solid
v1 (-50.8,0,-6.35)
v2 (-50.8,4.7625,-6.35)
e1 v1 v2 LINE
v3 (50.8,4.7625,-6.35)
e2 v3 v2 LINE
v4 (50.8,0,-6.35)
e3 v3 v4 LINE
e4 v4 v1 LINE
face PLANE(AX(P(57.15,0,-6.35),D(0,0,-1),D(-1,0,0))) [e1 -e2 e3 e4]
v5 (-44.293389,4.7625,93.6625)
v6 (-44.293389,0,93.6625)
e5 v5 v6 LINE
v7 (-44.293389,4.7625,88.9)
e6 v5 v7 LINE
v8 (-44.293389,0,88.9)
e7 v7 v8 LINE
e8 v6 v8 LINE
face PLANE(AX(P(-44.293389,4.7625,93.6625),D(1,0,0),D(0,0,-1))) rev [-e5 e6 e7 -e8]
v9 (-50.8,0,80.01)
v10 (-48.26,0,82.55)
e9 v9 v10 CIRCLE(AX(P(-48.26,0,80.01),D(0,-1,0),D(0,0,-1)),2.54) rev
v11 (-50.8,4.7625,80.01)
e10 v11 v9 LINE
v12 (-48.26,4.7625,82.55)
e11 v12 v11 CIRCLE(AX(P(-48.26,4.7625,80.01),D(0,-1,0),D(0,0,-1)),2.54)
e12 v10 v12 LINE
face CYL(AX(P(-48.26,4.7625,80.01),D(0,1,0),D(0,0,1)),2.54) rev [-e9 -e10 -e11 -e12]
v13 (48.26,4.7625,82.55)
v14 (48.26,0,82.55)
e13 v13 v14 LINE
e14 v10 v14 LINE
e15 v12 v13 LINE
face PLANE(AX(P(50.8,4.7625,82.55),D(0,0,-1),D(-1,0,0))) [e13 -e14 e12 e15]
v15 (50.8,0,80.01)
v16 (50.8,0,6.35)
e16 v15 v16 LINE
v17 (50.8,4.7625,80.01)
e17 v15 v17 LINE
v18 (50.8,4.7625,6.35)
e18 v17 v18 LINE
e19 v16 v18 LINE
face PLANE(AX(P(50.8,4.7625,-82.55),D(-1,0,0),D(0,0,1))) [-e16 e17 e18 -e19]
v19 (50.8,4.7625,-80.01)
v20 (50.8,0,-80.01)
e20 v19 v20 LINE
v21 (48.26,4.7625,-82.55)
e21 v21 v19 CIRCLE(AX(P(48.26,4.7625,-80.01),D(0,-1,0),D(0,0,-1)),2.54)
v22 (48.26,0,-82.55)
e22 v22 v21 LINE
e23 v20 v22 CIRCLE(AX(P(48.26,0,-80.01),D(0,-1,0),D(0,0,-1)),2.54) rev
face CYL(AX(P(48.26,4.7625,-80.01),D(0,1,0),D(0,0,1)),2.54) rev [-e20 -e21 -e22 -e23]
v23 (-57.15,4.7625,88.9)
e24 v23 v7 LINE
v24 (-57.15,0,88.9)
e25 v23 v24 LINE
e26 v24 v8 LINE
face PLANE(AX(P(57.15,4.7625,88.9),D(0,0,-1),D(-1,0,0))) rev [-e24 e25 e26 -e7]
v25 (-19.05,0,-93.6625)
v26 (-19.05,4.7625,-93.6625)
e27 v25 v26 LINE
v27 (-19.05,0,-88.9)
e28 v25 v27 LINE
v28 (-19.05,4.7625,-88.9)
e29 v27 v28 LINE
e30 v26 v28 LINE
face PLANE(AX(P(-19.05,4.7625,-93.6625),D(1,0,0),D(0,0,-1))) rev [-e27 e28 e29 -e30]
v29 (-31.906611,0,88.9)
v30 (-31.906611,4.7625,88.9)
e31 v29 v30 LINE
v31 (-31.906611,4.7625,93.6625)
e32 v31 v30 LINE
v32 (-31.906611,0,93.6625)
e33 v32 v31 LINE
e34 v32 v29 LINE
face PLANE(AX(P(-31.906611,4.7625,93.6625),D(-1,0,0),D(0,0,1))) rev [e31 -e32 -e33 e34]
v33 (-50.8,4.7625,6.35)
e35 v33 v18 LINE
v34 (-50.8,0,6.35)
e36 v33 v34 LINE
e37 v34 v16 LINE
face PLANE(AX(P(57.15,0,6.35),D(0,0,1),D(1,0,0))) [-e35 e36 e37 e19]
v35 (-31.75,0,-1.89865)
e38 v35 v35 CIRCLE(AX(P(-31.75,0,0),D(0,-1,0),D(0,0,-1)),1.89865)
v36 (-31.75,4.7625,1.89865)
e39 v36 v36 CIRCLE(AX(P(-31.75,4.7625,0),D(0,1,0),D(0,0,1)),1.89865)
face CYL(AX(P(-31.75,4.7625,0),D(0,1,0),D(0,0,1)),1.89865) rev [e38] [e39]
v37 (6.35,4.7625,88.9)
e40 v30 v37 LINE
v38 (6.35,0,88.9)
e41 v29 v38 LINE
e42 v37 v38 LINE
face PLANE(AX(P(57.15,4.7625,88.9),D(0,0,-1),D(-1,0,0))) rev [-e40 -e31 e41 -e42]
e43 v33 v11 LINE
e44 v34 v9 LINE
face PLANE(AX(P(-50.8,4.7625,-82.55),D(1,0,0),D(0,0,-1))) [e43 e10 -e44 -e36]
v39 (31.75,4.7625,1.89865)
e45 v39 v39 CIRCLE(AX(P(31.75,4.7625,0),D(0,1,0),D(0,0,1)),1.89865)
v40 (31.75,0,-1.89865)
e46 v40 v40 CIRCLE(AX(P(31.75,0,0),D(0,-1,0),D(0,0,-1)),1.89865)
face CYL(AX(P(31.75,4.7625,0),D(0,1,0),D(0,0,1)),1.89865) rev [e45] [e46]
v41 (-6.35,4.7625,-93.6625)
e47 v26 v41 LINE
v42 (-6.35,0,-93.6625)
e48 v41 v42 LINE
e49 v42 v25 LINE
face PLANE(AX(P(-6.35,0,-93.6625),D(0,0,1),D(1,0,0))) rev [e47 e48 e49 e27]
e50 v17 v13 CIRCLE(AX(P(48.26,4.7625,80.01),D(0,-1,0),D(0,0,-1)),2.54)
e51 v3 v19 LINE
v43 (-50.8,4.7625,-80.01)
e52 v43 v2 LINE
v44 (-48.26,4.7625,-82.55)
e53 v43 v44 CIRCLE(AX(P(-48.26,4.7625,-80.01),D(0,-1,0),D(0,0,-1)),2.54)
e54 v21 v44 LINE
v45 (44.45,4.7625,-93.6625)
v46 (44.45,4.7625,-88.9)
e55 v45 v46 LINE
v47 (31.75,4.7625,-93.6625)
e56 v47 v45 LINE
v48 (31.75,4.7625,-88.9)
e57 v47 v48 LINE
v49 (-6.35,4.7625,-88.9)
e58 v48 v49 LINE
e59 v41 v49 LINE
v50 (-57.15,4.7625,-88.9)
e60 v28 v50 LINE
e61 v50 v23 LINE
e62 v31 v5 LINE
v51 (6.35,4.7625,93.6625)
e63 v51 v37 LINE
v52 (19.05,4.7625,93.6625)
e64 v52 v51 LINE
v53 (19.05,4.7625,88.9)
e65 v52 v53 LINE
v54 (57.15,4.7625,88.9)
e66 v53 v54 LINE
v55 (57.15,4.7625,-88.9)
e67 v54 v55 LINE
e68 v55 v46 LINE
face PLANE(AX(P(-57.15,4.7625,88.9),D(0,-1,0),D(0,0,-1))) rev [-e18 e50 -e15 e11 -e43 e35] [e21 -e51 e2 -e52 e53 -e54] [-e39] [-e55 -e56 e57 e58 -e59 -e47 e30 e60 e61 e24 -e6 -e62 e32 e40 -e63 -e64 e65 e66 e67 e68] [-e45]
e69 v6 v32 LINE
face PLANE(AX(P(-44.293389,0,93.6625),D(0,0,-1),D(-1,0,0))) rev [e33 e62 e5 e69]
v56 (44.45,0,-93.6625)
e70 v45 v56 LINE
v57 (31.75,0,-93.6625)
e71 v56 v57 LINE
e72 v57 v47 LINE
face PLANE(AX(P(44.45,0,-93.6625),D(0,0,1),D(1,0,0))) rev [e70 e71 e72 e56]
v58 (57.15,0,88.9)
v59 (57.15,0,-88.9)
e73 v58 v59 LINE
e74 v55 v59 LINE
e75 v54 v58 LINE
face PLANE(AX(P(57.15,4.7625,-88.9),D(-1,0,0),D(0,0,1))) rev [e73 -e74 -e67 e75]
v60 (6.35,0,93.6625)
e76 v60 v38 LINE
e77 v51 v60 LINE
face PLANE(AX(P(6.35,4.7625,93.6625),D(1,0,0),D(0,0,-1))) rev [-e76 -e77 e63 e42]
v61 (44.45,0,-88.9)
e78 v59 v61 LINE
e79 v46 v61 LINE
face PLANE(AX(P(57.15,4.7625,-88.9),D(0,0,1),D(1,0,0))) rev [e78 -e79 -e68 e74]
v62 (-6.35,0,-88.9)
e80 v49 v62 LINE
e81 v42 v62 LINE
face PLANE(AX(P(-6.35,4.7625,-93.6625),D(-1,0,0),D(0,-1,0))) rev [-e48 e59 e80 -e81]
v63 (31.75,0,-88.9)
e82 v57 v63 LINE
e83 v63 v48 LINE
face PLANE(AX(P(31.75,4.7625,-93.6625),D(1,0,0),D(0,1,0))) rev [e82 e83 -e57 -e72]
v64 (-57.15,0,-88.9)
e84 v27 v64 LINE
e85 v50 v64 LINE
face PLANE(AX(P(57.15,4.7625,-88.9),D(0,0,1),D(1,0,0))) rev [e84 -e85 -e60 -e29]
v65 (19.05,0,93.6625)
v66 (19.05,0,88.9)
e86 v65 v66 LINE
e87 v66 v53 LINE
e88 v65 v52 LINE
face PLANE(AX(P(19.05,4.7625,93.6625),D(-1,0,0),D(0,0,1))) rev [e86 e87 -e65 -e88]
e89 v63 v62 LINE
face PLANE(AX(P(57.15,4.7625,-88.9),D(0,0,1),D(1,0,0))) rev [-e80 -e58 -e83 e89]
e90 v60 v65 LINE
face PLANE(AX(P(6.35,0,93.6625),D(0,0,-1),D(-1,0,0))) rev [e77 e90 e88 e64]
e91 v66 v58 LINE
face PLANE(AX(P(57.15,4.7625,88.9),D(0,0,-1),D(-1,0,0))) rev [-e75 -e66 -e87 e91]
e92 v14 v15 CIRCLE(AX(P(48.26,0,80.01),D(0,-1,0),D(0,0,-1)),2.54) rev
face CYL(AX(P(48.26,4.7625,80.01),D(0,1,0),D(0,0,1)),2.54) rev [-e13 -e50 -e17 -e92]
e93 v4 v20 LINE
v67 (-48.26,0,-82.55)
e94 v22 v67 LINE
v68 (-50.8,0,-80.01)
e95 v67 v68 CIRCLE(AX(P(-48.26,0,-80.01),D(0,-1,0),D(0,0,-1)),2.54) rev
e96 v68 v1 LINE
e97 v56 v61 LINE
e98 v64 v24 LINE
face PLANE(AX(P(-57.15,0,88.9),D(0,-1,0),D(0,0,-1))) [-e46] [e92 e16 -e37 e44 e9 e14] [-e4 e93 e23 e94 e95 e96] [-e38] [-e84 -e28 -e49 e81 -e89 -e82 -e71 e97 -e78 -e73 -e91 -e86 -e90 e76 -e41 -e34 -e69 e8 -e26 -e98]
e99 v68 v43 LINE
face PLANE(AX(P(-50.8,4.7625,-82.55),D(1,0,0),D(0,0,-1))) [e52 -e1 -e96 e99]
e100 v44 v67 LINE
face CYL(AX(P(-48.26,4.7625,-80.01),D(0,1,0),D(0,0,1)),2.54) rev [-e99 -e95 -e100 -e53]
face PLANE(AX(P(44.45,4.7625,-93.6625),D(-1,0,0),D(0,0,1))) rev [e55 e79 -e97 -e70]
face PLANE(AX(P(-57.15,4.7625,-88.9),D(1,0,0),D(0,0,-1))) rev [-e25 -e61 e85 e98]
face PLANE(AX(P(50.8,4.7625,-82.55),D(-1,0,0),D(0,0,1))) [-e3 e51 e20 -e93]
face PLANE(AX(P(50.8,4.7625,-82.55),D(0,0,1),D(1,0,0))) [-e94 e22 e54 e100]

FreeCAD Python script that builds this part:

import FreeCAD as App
import Part
import Sketcher

V = App.Vector
Q = App.Units.Quantity


def edges_at(feature, points):
    """Names of the edges that pass closest to the given points."""
    edges = feature.Shape.Edges
    near = lambda p: min(range(len(edges)), key=lambda i: edges[i].distToShape(Part.Vertex(*p))[0])
    return sorted({f"Edge{near(p) + 1}" for p in points})

doc = App.newDocument("Part")
body = doc.addObject("PartDesign::Body", "Body")

sketch1 = doc.addObject("Sketcher::SketchObject", "Sketch")
body.addObject(sketch1)
sketch1.AttachmentSupport = (doc.XZ_Plane, [""])
sketch1.MapMode = "FlatFace"
sketch1.addGeometry(Part.LineSegment(V(-57.15, -88.9, 0), V(-57.15, 88.9, 0)), False)
sketch1.addGeometry(Part.LineSegment(V(-57.15, 88.9, 0), V(57.15, 88.9, 0)), False)
sketch1.addGeometry(Part.LineSegment(V(57.15, 88.9, 0), V(57.15, -88.9, 0)), False)
sketch1.addGeometry(Part.LineSegment(V(57.15, -88.9, 0), V(-57.15, -88.9, 0)), False)
sketch1.addGeometry(Part.LineSegment(V(50.8, 82.55, 0), V(-50.8, 82.55, 0)), False)
sketch1.addGeometry(Part.LineSegment(V(-50.8, 82.55, 0), V(-50.8, -82.55, 0)), False)
sketch1.addGeometry(Part.LineSegment(V(-50.8, -82.55, 0), V(50.8, -82.55, 0)), False)
sketch1.addGeometry(Part.LineSegment(V(50.8, -82.55, 0), V(50.8, 82.55, 0)), False)
sketch1.addConstraint(Sketcher.Constraint("Coincident", 0, 2, 1, 1))
sketch1.addConstraint(Sketcher.Constraint("Coincident", 1, 2, 2, 1))
sketch1.addConstraint(Sketcher.Constraint("Coincident", 2, 2, 3, 1))
sketch1.addConstraint(Sketcher.Constraint("Coincident", 3, 2, 0, 1))
sketch1.addConstraint(Sketcher.Constraint("Coincident", 4, 2, 5, 1))
sketch1.addConstraint(Sketcher.Constraint("Coincident", 5, 2, 6, 1))
sketch1.addConstraint(Sketcher.Constraint("Coincident", 6, 2, 7, 1))
sketch1.addConstraint(Sketcher.Constraint("Coincident", 7, 2, 4, 1))
sketch1.addConstraint(Sketcher.Constraint("Vertical", 0))
sketch1.addConstraint(Sketcher.Constraint("Horizontal", 1))
sketch1.addConstraint(Sketcher.Constraint("Vertical", 2))
sketch1.addConstraint(Sketcher.Constraint("Horizontal", 3))
sketch1.addConstraint(Sketcher.Constraint("Horizontal", 4))
sketch1.addConstraint(Sketcher.Constraint("Vertical", 5))
sketch1.addConstraint(Sketcher.Constraint("Horizontal", 6))
sketch1.addConstraint(Sketcher.Constraint("Vertical", 7))
sketch1.addConstraint(Sketcher.Constraint("Symmetric", 0, 2, 2, 2, -1, 1))
sketch1.addConstraint(Sketcher.Constraint("Symmetric", 4, 2, 6, 2, -1, 1))
sketch1.addConstraint(Sketcher.Constraint("DistanceX", 4, 2, 4, 1, Q("4 in")))
sketch1.addConstraint(Sketcher.Constraint("DistanceY", 0, 1, 0, 2, Q("7 in")))
sketch1.addConstraint(Sketcher.Constraint("DistanceX", 1, 1, 1, 2, Q("4.5 in")))
sketch1.addConstraint(Sketcher.Constraint("DistanceY", 5, 2, 5, 1, Q("6.5 in")))
pad1 = doc.addObject("PartDesign::Pad", "Pad")
body.addObject(pad1)
pad1.Profile = sketch1
pad1.Length = Q("0.1875 in")
pad1.Reversed = True

sketch2 = doc.addObject("Sketcher::SketchObject", "Sketch001")
body.addObject(sketch2)
sketch2.AttachmentSupport = (doc.XY_Plane, [""])
sketch2.MapMode = "FlatFace"
sketch2.AttachmentOffset = App.Placement(V(0, 0, 3.5 * 25.4), App.Rotation())
sketch2.addGeometry(Part.LineSegment(V(-44.293389, 4.7625, 0), V(-44.293389, 0, 0)), False)
sketch2.addGeometry(Part.LineSegment(V(-44.293389, 0, 0), V(-31.906611, 0, 0)), False)
sketch2.addGeometry(Part.LineSegment(V(-31.906611, 0, 0), V(-31.906611, 4.7625, 0)), False)
sketch2.addGeometry(Part.LineSegment(V(-31.906611, 4.7625, 0), V(-44.293389, 4.7625, 0)), False)
sketch2.addGeometry(Part.LineSegment(V(6.35, 4.7625, 0), V(6.35, 0, 0)), False)
sketch2.addGeometry(Part.LineSegment(V(6.35, 0, 0), V(19.05, 0, 0)), False)
sketch2.addGeometry(Part.LineSegment(V(19.05, 0, 0), V(19.05, 4.7625, 0)), False)
sketch2.addGeometry(Part.LineSegment(V(19.05, 4.7625, 0), V(6.35, 4.7625, 0)), False)
sketch2.addConstraint(Sketcher.Constraint("Coincident", 0, 2, 1, 1))
sketch2.addConstraint(Sketcher.Constraint("Coincident", 1, 2, 2, 1))
sketch2.addConstraint(Sketcher.Constraint("Coincident", 2, 2, 3, 1))
sketch2.addConstraint(Sketcher.Constraint("Coincident", 3, 2, 0, 1))
sketch2.addConstraint(Sketcher.Constraint("Coincident", 4, 2, 5, 1))
sketch2.addConstraint(Sketcher.Constraint("Coincident", 5, 2, 6, 1))
sketch2.addConstraint(Sketcher.Constraint("Coincident", 6, 2, 7, 1))
sketch2.addConstraint(Sketcher.Constraint("Coincident", 7, 2, 4, 1))
sketch2.addConstraint(Sketcher.Constraint("Vertical", 0))
sketch2.addConstraint(Sketcher.Constraint("Horizontal", 1))
sketch2.addConstraint(Sketcher.Constraint("Vertical", 2))
sketch2.addConstraint(Sketcher.Constraint("Horizontal", 3))
sketch2.addConstraint(Sketcher.Constraint("Vertical", 4))
sketch2.addConstraint(Sketcher.Constraint("Horizontal", 5))
sketch2.addConstraint(Sketcher.Constraint("Vertical", 6))
sketch2.addConstraint(Sketcher.Constraint("Horizontal", 7))
sketch2.addConstraint(Sketcher.Constraint("PointOnObject", 0, 2, -1))
sketch2.addConstraint(Sketcher.Constraint("PointOnObject", 4, 2, -1))
sketch2.addConstraint(Sketcher.Constraint("Horizontal", 3, 2, 6, 2))
sketch2.addConstraint(Sketcher.Constraint("DistanceX", 5, 1, 5, 2, Q("0.5 in")))
sketch2.addConstraint(Sketcher.Constraint("DistanceY", 0, 2, 0, 1, Q("0.1875 in")))
sketch2.addConstraint(Sketcher.Constraint("DistanceX", -1, 1, 4, 2, Q("0.25 in")))
sketch2.addConstraint(Sketcher.Constraint("DistanceX", 1, 1, 1, 2, Q("12.386778 mm")))
sketch2.addConstraint(Sketcher.Constraint("DistanceX", 0, 2, -1, 1, Q("44.293389 mm")))
pad2 = doc.addObject("PartDesign::Pad", "Pad001")
body.addObject(pad2)
pad2.Profile = sketch2
pad2.Length = Q("0.1875 in")

sketch3 = doc.addObject("Sketcher::SketchObject", "Sketch002")
body.addObject(sketch3)
sketch3.AttachmentSupport = (doc.XY_Plane, [""])
sketch3.MapMode = "FlatFace"
sketch3.AttachmentOffset = App.Placement(V(0, 0, -3.5 * 25.4), App.Rotation())
sketch3.addGeometry(Part.LineSegment(V(44.45, 4.7625, 0), V(44.45, 0, 0)), False)
sketch3.addGeometry(Part.LineSegment(V(44.45, 0, 0), V(31.75, 0, 0)), False)
sketch3.addGeometry(Part.LineSegment(V(31.75, 0, 0), V(31.75, 4.7625, 0)), False)
sketch3.addGeometry(Part.LineSegment(V(31.75, 4.7625, 0), V(44.45, 4.7625, 0)), False)
sketch3.addGeometry(Part.LineSegment(V(-6.35, 4.7625, 0), V(-6.35, 0, 0)), False)
sketch3.addGeometry(Part.LineSegment(V(-6.35, 0, 0), V(-19.05, 0, 0)), False)
sketch3.addGeometry(Part.LineSegment(V(-19.05, 0, 0), V(-19.05, 4.7625, 0)), False)
sketch3.addGeometry(Part.LineSegment(V(-19.05, 4.7625, 0), V(-6.35, 4.7625, 0)), False)
sketch3.addConstraint(Sketcher.Constraint("Coincident", 0, 2, 1, 1))
sketch3.addConstraint(Sketcher.Constraint("Coincident", 1, 2, 2, 1))
sketch3.addConstraint(Sketcher.Constraint("Coincident", 2, 2, 3, 1))
sketch3.addConstraint(Sketcher.Constraint("Coincident", 3, 2, 0, 1))
sketch3.addConstraint(Sketcher.Constraint("Coincident", 4, 2, 5, 1))
sketch3.addConstraint(Sketcher.Constraint("Coincident", 5, 2, 6, 1))
sketch3.addConstraint(Sketcher.Constraint("Coincident", 6, 2, 7, 1))
sketch3.addConstraint(Sketcher.Constraint("Coincident", 7, 2, 4, 1))
sketch3.addConstraint(Sketcher.Constraint("Vertical", 0))
sketch3.addConstraint(Sketcher.Constraint("Horizontal", 1))
sketch3.addConstraint(Sketcher.Constraint("Vertical", 2))
sketch3.addConstraint(Sketcher.Constraint("Horizontal", 3))
sketch3.addConstraint(Sketcher.Constraint("Vertical", 4))
sketch3.addConstraint(Sketcher.Constraint("Horizontal", 5))
sketch3.addConstraint(Sketcher.Constraint("Vertical", 6))
sketch3.addConstraint(Sketcher.Constraint("Horizontal", 7))
sketch3.addConstraint(Sketcher.Constraint("PointOnObject", 0, 2, -1))
sketch3.addConstraint(Sketcher.Constraint("PointOnObject", 4, 2, -1))
sketch3.addConstraint(Sketcher.Constraint("Horizontal", 3, 2, 6, 2))
sketch3.addConstraint(Sketcher.Constraint("Equal", 3, 5))
sketch3.addConstraint(Sketcher.Constraint("DistanceX", 1, 2, 1, 1, Q("0.5 in")))
sketch3.addConstraint(Sketcher.Constraint("DistanceX", 4, 2, 0, 2, Q("2 in")))
sketch3.addConstraint(Sketcher.Constraint("DistanceY", 0, 2, 0, 1, Q("0.1875 in")))
sketch3.addConstraint(Sketcher.Constraint("DistanceX", -1, 1, 0, 2, Q("1.75 in")))
pad3 = doc.addObject("PartDesign::Pad", "Pad002")
body.addObject(pad3)
pad3.Profile = sketch3
pad3.Length = Q("0.1875 in")
pad3.Reversed = True
doc.recompute()

fillet = doc.addObject("PartDesign::Fillet", "Fillet")
body.addObject(fillet)
fillet.Base = (pad3, edges_at(pad3, [
    (50.8, 2.381, 82.55),
    (50.8, 2.381, -82.55),
    (-50.8, 2.381, -82.55),
    (-50.8, 2.381, 82.55),
]))
fillet.Radius = Q("0.1 in")

sketch4 = doc.addObject("Sketcher::SketchObject", "Sketch003")
body.addObject(sketch4)
sketch4.AttachmentSupport = (doc.XZ_Plane, [""])
sketch4.MapMode = "FlatFace"
sketch4.AttachmentOffset = App.Placement(V(0, 0, -0.1875 * 25.4), App.Rotation())
sketch4.addGeometry(Part.LineSegment(V(-57.15, -6.35, 0), V(-57.15, 6.35, 0)), False)
sketch4.addGeometry(Part.LineSegment(V(-57.15, 6.35, 0), V(57.15, 6.35, 0)), False)
sketch4.addGeometry(Part.LineSegment(V(57.15, 6.35, 0), V(57.15, -6.35, 0)), False)
sketch4.addGeometry(Part.LineSegment(V(57.15, -6.35, 0), V(-57.15, -6.35, 0)), False)
sketch4.addConstraint(Sketcher.Constraint("Coincident", 0, 2, 1, 1))
sketch4.addConstraint(Sketcher.Constraint("Coincident", 1, 2, 2, 1))
sketch4.addConstraint(Sketcher.Constraint("Coincident", 2, 2, 3, 1))
sketch4.addConstraint(Sketcher.Constraint("Coincident", 3, 2, 0, 1))
sketch4.addConstraint(Sketcher.Constraint("Vertical", 0))
sketch4.addConstraint(Sketcher.Constraint("Horizontal", 1))
sketch4.addConstraint(Sketcher.Constraint("Vertical", 2))
sketch4.addConstraint(Sketcher.Constraint("Horizontal", 3))
sketch4.addConstraint(Sketcher.Constraint("Symmetric", 0, 2, 2, 2, -1, 1))
sketch4.addConstraint(Sketcher.Constraint("DistanceX", 1, 1, 1, 2, Q("4.5 in")))
sketch4.addConstraint(Sketcher.Constraint("DistanceY", 0, 1, 0, 2, Q("0.5 in")))
pad4 = doc.addObject("PartDesign::Pad", "Pad003")
body.addObject(pad4)
pad4.Profile = sketch4
pad4.Length = Q("0.1875 in")

sketch5 = doc.addObject("Sketcher::SketchObject", "Sketch004")
body.addObject(sketch5)
sketch5.AttachmentSupport = (doc.XZ_Plane, [""])
sketch5.MapMode = "FlatFace"
sketch5.AttachmentOffset = App.Placement(V(0, 0, -0.1875 * 25.4), App.Rotation())
sketch5.addGeometry(Part.Circle(V(-31.75, 0, 0), V(0, 0, 1), 1.89865), False)
sketch5.addGeometry(Part.Circle(V(31.75, 0, 0), V(0, 0, 1), 1.89865), False)
sketch5.addConstraint(Sketcher.Constraint("Equal", 0, 1))
sketch5.addConstraint(Sketcher.Constraint("Symmetric", 0, 3, 1, 3, -1, 1))
sketch5.addConstraint(Sketcher.Constraint("PointOnObject", 0, 3, -1))
sketch5.addConstraint(Sketcher.Constraint("Diameter", 0, Q("0.1495 in")))
sketch5.addConstraint(Sketcher.Constraint("DistanceX", 0, 3, 1, 3, Q("2.5 in")))
doc.recompute()
hole = doc.addObject("PartDesign::Hole", "Hole")
body.addObject(hole)
hole.Profile = sketch5
hole.ThreadType = "None"
hole.Diameter = Q("0.1495 in")
hole.DepthType = "Dimension"
hole.Depth = Q("1 in")
hole.DrillPoint = "Angled"
hole.DrillPointAngle = 118
hole.Reversed = True

doc.recompute()
